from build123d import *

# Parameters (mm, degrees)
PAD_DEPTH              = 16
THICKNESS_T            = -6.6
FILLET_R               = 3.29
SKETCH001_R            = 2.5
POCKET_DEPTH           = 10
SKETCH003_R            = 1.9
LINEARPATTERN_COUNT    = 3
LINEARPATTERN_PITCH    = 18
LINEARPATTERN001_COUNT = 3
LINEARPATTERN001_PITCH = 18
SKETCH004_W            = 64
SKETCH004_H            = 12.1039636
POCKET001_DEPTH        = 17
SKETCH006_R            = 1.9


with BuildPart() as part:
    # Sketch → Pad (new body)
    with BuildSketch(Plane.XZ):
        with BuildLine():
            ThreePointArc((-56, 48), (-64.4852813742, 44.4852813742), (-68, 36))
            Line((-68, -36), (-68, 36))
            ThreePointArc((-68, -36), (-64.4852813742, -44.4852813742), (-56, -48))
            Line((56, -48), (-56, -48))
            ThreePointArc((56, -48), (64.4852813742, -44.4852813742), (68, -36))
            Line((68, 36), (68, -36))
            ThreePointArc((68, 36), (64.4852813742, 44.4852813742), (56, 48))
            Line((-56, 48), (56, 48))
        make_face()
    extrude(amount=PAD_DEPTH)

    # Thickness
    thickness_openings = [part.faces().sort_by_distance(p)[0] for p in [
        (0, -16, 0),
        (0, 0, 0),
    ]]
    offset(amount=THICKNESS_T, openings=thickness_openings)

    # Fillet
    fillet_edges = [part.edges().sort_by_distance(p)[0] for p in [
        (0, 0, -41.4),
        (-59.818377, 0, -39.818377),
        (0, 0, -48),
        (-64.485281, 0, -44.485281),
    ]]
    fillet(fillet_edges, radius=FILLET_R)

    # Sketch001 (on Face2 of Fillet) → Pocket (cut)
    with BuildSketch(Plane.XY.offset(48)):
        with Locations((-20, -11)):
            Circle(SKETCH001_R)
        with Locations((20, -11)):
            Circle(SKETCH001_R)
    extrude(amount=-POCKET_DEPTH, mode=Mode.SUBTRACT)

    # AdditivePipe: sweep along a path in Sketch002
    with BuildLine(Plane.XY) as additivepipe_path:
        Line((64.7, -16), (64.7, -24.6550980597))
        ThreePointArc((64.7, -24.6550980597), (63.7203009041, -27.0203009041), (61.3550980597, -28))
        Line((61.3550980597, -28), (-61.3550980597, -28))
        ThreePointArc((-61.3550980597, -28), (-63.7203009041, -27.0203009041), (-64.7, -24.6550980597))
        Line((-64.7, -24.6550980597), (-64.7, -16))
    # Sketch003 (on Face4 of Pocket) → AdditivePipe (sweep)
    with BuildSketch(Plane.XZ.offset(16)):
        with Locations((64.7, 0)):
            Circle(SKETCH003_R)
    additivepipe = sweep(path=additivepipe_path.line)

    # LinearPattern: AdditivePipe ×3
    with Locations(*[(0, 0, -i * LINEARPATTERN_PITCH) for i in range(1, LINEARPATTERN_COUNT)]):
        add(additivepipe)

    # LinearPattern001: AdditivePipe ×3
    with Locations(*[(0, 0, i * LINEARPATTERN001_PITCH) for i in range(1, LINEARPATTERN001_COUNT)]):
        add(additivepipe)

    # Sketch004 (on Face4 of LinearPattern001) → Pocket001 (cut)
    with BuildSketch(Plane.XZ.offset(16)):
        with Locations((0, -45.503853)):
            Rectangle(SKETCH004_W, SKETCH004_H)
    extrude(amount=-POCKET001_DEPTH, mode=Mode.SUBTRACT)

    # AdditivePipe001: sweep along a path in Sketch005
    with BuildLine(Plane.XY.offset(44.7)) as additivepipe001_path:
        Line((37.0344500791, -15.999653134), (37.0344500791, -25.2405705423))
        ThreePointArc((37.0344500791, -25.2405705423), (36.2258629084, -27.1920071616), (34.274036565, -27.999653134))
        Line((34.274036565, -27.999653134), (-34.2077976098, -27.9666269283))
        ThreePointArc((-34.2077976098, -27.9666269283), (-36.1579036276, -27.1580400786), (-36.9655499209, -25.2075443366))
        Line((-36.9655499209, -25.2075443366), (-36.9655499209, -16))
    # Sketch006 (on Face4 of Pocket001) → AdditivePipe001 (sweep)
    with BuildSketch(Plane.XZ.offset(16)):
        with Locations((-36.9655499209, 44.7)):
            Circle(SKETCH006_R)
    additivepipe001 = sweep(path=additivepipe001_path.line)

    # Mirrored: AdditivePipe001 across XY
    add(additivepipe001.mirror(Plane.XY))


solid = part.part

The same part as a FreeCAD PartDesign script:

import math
import FreeCAD as App
import Part
import Sketcher
from FreeCAD import Vector


def edges_at(feature, points):
    """Names of the edges that pass closest to the given points."""
    edges = feature.Shape.Edges
    near = lambda p: min(range(len(edges)), key=lambda i: edges[i].distToShape(Part.Vertex(*p))[0])
    return sorted({f"Edge{near(p) + 1}" for p in points})


def faces_at(feature, points):
    """Names of the faces that lie closest to the given points."""
    faces = feature.Shape.Faces
    near = lambda p: min(range(len(faces)), key=lambda i: faces[i].distToShape(Part.Vertex(*p))[0])
    return sorted({f"Face{near(p) + 1}" for p in points})

doc = App.newDocument("Part")
body = doc.addObject("PartDesign::Body", "Body")

sketch1 = doc.addObject("Sketcher::SketchObject", "Sketch")
body.addObject(sketch1)
sketch1.AttachmentSupport = (doc.XZ_Plane, [""])
sketch1.MapMode = "FlatFace"
sketch1.addGeometry(Part.ArcOfCircle(Part.Circle(Vector(-56, 36, 0), Vector(0, 0, 1), 12), math.radians(90), math.radians(180)), False)
sketch1.addGeometry(Part.LineSegment(Vector(-68, 36, 0), Vector(-68, -36, 0)), False)
sketch1.addGeometry(Part.ArcOfCircle(Part.Circle(Vector(-56, -36, 0), Vector(0, 0, 1), 12), math.radians(180), math.radians(270)), False)
sketch1.addGeometry(Part.LineSegment(Vector(-56, -48, 0), Vector(56, -48, 0)), False)
sketch1.addGeometry(Part.ArcOfCircle(Part.Circle(Vector(56, -36, 0), Vector(0, 0, 1), 12), math.radians(-90), math.radians(0)), False)
sketch1.addGeometry(Part.LineSegment(Vector(68, -36, 0), Vector(68, 36, 0)), False)
sketch1.addGeometry(Part.ArcOfCircle(Part.Circle(Vector(56, 36, 0), Vector(0, 0, 1), 12), math.radians(0), math.radians(90)), False)
sketch1.addGeometry(Part.LineSegment(Vector(56, 48, 0), Vector(-56, 48, 0)), False)
sketch1.addConstraint(Sketcher.Constraint("Tangent", 0, 2, 1, 1))
sketch1.addConstraint(Sketcher.Constraint("Tangent", 1, 2, 2, 1))
sketch1.addConstraint(Sketcher.Constraint("Tangent", 2, 2, 3, 1))
sketch1.addConstraint(Sketcher.Constraint("Tangent", 3, 2, 4, 1))
sketch1.addConstraint(Sketcher.Constraint("Tangent", 4, 2, 5, 1))
sketch1.addConstraint(Sketcher.Constraint("Tangent", 5, 2, 6, 1))
sketch1.addConstraint(Sketcher.Constraint("Tangent", 6, 2, 7, 1))
sketch1.addConstraint(Sketcher.Constraint("Tangent", 7, 2, 0, 1))
sketch1.addConstraint(Sketcher.Constraint("Vertical", 1))
sketch1.addConstraint(Sketcher.Constraint("Horizontal", 3))
sketch1.addConstraint(Sketcher.Constraint("Vertical", 5))
sketch1.addConstraint(Sketcher.Constraint("Horizontal", 7))
sketch1.addConstraint(Sketcher.Constraint("Equal", 0, 2))
sketch1.addConstraint(Sketcher.Constraint("Equal", 2, 4))
sketch1.addConstraint(Sketcher.Constraint("Equal", 4, 6))
sketch1.addConstraint(Sketcher.Constraint("Symmetric", 0, 3, 4, 3, -1, 1))
sketch1.addConstraint(Sketcher.Constraint("Radius", 0, 12.0))
sketch1.addConstraint(Sketcher.Constraint("DistanceX", 3, 1, 3, 2, 112.0))
sketch1.addConstraint(Sketcher.Constraint("DistanceY", 1, 2, 1, 1, 72.0))
pad1 = doc.addObject("PartDesign::Pad", "Pad")
body.addObject(pad1)
pad1.Profile = sketch1
pad1.Length = 16
doc.recompute()

thickness = doc.addObject("PartDesign::Thickness", "Thickness")
body.addObject(thickness)
thickness.Base = (pad1, faces_at(pad1, [(0, -16, 0), (0, 0, 0)]))
thickness.Value = 6.6
thickness.Reversed = True
thickness.Join = "Arc"
doc.recompute()

fillet = doc.addObject("PartDesign::Fillet", "Fillet")
body.addObject(fillet)
fillet.Base = (thickness, edges_at(thickness, [
    (0, 0, -41.4),
    (-59.818, 0, -39.818),
    (0, 0, -48),
    (-64.485, 0, -44.485),
]))
fillet.Radius = 3.29

sketch2 = doc.addObject("Sketcher::SketchObject", "Sketch001")
body.addObject(sketch2)
sketch2.AttachmentSupport = (doc.XY_Plane, [""])
sketch2.MapMode = "FlatFace"
sketch2.AttachmentOffset = App.Placement(Vector(0, 0, 48), App.Rotation())
sketch2.addGeometry(Part.Circle(Vector(-20, -11, 0), Vector(0, 0, 1), 2.5), False)
sketch2.addGeometry(Part.Circle(Vector(20, -11, 0), Vector(0, 0, 1), 2.5), False)
sketch2.addConstraint(Sketcher.Constraint("Equal", 0, 1))
sketch2.addConstraint(Sketcher.Constraint("Symmetric", 0, 3, 1, 3, -2))
sketch2.addConstraint(Sketcher.Constraint("Diameter", 0, 5.0))
sketch2.addConstraint(Sketcher.Constraint("DistanceX", 0, 3, -1, 1, 20.0))
sketch2.addConstraint(Sketcher.Constraint("DistanceY", 0, 3, -1, 1, 11.0))
pocket1 = doc.addObject("PartDesign::Pocket", "Pocket")
body.addObject(pocket1)
pocket1.Profile = sketch2
pocket1.Length = 10

sketch3 = doc.addObject("Sketcher::SketchObject", "Sketch002")
body.addObject(sketch3)
sketch3.AttachmentSupport = (doc.XZ_Plane, [""])
sketch3.MapMode = "FlatFace"
sketch3.AttachmentOffset = App.Placement(Vector(0, 0, 16), App.Rotation())
sketch3.addGeometry(Part.Circle(Vector(64.7, 0, 0), Vector(0, 0, 1), 1.9), False)
sketch3.addConstraint(Sketcher.Constraint("PointOnObject", 0, 3, -1))
sketch3.addConstraint(Sketcher.Constraint("Diameter", 0, 3.8))
sketch3.addConstraint(Sketcher.Constraint("DistanceX", -1, 1, 0, 3, 64.7))

sketch4 = doc.addObject("Sketcher::SketchObject", "Sketch003")
body.addObject(sketch4)
sketch4.AttachmentSupport = (doc.XY_Plane, [""])
sketch4.MapMode = "FlatFace"
sketch4.addGeometry(Part.LineSegment(Vector(64.7, -16, 0), Vector(64.7, -24.655098, 0)), False)
sketch4.addGeometry(Part.ArcOfCircle(Part.Circle(Vector(61.355098, -24.655098, 0), Vector(0, 0, 1), 3.344902), math.radians(-90), math.radians(0)), False)
sketch4.addGeometry(Part.LineSegment(Vector(61.355098, -28, 0), Vector(-61.355098, -28, 0)), False)
sketch4.addGeometry(Part.ArcOfCircle(Part.Circle(Vector(-61.355098, -24.655098, 0), Vector(0, 0, 1), 3.344902), math.radians(180), math.radians(270)), False)
sketch4.addGeometry(Part.LineSegment(Vector(-64.7, -24.655098, 0), Vector(-64.7, -16, 0)), False)
sketch4.addConstraint(Sketcher.Constraint("Tangent", 0, 2, 1, 2))
sketch4.addConstraint(Sketcher.Constraint("Tangent", 1, 1, 2, 1))
sketch4.addConstraint(Sketcher.Constraint("Tangent", 2, 2, 3, 2))
sketch4.addConstraint(Sketcher.Constraint("Tangent", 3, 1, 4, 1))
sketch4.addConstraint(Sketcher.Constraint("Vertical", 0))
sketch4.addConstraint(Sketcher.Constraint("Horizontal", 2))
sketch4.addConstraint(Sketcher.Constraint("Vertical", 4))
sketch4.addConstraint(Sketcher.Constraint("Equal", 1, 3))
sketch4.addConstraint(Sketcher.Constraint("Symmetric", 0, 1, 4, 2, -2))
sketch4.addConstraint(Sketcher.Constraint("DistanceY", 0, 1, -1, 1, 16.0))
sketch4.addConstraint(Sketcher.Constraint("DistanceY", 1, 1, -1, 1, 28.0))
sketch4.addConstraint(Sketcher.Constraint("DistanceX", -1, 1, 0, 1, 64.7))
sketch4.addConstraint(Sketcher.Constraint("Radius", 1, 3.344902))
doc.recompute()

additivepipe = doc.addObject("PartDesign::AdditivePipe", "AdditivePipe")
body.addObject(additivepipe)
additivepipe.Profile = sketch3
additivepipe.Spine = (sketch4, ["Edge1", "Edge2", "Edge3", "Edge4", "Edge5"])
doc.recompute()

linearpattern = doc.addObject("PartDesign::LinearPattern", "LinearPattern")
body.addObject(linearpattern)
linearpattern.Originals = [additivepipe]
linearpattern.Direction = (doc.Z_Axis, [""])
linearpattern.Mode = "offset"
linearpattern.Offset = 18
linearpattern.Occurrences = 3
linearpattern.Reversed = True
body.Tip = linearpattern
doc.recompute()

linearpattern2 = doc.addObject("PartDesign::LinearPattern", "LinearPattern001")
body.addObject(linearpattern2)
linearpattern2.Originals = [additivepipe]
linearpattern2.Direction = (doc.Z_Axis, [""])
linearpattern2.Mode = "offset"
linearpattern2.Offset = 18
linearpattern2.Occurrences = 3
body.Tip = linearpattern2

sketch5 = doc.addObject("Sketcher::SketchObject", "Sketch004")
body.addObject(sketch5)
sketch5.AttachmentSupport = (doc.XZ_Plane, [""])
sketch5.MapMode = "FlatFace"
sketch5.AttachmentOffset = App.Placement(Vector(0, 0, 16), App.Rotation())
sketch5.addGeometry(Part.LineSegment(Vector(-32, -39.451871, 0), Vector(-32, -51.555835, 0)), False)
sketch5.addGeometry(Part.LineSegment(Vector(-32, -51.555835, 0), Vector(32, -51.555835, 0)), False)
sketch5.addGeometry(Part.LineSegment(Vector(32, -51.555835, 0), Vector(32, -39.451871, 0)), False)
sketch5.addGeometry(Part.LineSegment(Vector(32, -39.451871, 0), Vector(-32, -39.451871, 0)), False)
sketch5.addConstraint(Sketcher.Constraint("Coincident", 0, 2, 1, 1))
sketch5.addConstraint(Sketcher.Constraint("Coincident", 1, 2, 2, 1))
sketch5.addConstraint(Sketcher.Constraint("Coincident", 2, 2, 3, 1))
sketch5.addConstraint(Sketcher.Constraint("Coincident", 3, 2, 0, 1))
sketch5.addConstraint(Sketcher.Constraint("Vertical", 0))
sketch5.addConstraint(Sketcher.Constraint("Horizontal", 1))
sketch5.addConstraint(Sketcher.Constraint("Vertical", 2))
sketch5.addConstraint(Sketcher.Constraint("Horizontal", 3))
sketch5.addConstraint(Sketcher.Constraint("DistanceX", 1, 1, 1, 2, 64.0))
sketch5.addConstraint(Sketcher.Constraint("DistanceX", 0, 2, -1, 1, 32.0))
sketch5.addConstraint(Sketcher.Constraint("DistanceY", 0, 2, 0, 1, 12.103964))
sketch5.addConstraint(Sketcher.Constraint("DistanceY", 2, 2, -1, 1, 39.451871))
pocket2 = doc.addObject("PartDesign::Pocket", "Pocket001")
body.addObject(pocket2)
pocket2.Profile = sketch5
pocket2.Length = 17

sketch6 = doc.addObject("Sketcher::SketchObject", "Sketch005")
body.addObject(sketch6)
sketch6.AttachmentSupport = (doc.XZ_Plane, [""])
sketch6.MapMode = "FlatFace"
sketch6.AttachmentOffset = App.Placement(Vector(0, 0, 16), App.Rotation())
sketch6.addGeometry(Part.Circle(Vector(-36.96555, 44.7, 0), Vector(0, 0, 1), 1.9), False)
sketch6.addConstraint(Sketcher.Constraint("Diameter", 0, 3.8))
sketch6.addConstraint(Sketcher.Constraint("DistanceY", -1, 1, 0, 3, 44.7))
sketch6.addConstraint(Sketcher.Constraint("DistanceX", 0, 3, -1, 1, 36.96555))

sketch7 = doc.addObject("Sketcher::SketchObject", "Sketch006")
body.addObject(sketch7)
sketch7.AttachmentSupport = (doc.XY_Plane, [""])
sketch7.MapMode = "FlatFace"
sketch7.AttachmentOffset = App.Placement(Vector(0, 0, 44.7), App.Rotation())
sketch7.addGeometry(Part.LineSegment(Vector(37.03445, -15.999653, 0), Vector(37.03445, -25.240571, 0)), False)
sketch7.addGeometry(Part.ArcOfCircle(Part.Circle(Vector(34.275367, -25.240571, 0), Vector(0, 0, 1), 2.759083), math.radians(-90.027632), math.radians(0)), False)
sketch7.addGeometry(Part.LineSegment(Vector(34.274037, -27.999653, 0), Vector(-34.207798, -27.966627, 0)), False)
sketch7.addGeometry(Part.ArcOfCircle(Part.Circle(Vector(-34.206467, -25.207544, 0), Vector(0, 0, 1), 2.759083), math.radians(180), math.radians(269.972368)), False)
sketch7.addGeometry(Part.LineSegment(Vector(-36.96555, -25.207544, 0), Vector(-36.96555, -16, 0)), False)
sketch7.addConstraint(Sketcher.Constraint("Tangent", 0, 2, 1, 2))
sketch7.addConstraint(Sketcher.Constraint("Tangent", 1, 1, 2, 1))
sketch7.addConstraint(Sketcher.Constraint("Tangent", 2, 2, 3, 2))
sketch7.addConstraint(Sketcher.Constraint("Tangent", 3, 1, 4, 1))
sketch7.addConstraint(Sketcher.Constraint("Vertical", 0))
sketch7.addConstraint(Sketcher.Constraint("Vertical", 4))
sketch7.addConstraint(Sketcher.Constraint("Equal", 1, 3))
sketch7.addConstraint(Sketcher.Constraint("DistanceY", 4, 2, -1, 1, 16.0))
sketch7.addConstraint(Sketcher.Constraint("DistanceY", 1, 1, 0, 1, 12.0))
sketch7.addConstraint(Sketcher.Constraint("DistanceX", 3, 1, 0, 2, 74.0))
sketch7.addConstraint(Sketcher.Constraint("Radius", 1, 2.759083))
sketch7.addConstraint(Sketcher.Constraint("DistanceY", 4, 1, 4, 2, 9.207544))
sketch7.addConstraint(Sketcher.Constraint("DistanceY", 1, 3, -1, 1, 25.240571))
sketch7.addConstraint(Sketcher.Constraint("DistanceX", -1, 1, 0, 1, 37.03445))
doc.recompute()

additivepipe2 = doc.addObject("PartDesign::AdditivePipe", "AdditivePipe001")
body.addObject(additivepipe2)
additivepipe2.Profile = sketch6
additivepipe2.Spine = (sketch7, ["Edge1", "Edge2", "Edge3", "Edge4", "Edge5"])
doc.recompute()

mirrored = doc.addObject("PartDesign::Mirrored", "Mirrored")
body.addObject(mirrored)
mirrored.Originals = [additivepipe2]
mirrored.MirrorPlane = (doc.XY_Plane, [""])
body.Tip = mirrored

doc.recompute()
